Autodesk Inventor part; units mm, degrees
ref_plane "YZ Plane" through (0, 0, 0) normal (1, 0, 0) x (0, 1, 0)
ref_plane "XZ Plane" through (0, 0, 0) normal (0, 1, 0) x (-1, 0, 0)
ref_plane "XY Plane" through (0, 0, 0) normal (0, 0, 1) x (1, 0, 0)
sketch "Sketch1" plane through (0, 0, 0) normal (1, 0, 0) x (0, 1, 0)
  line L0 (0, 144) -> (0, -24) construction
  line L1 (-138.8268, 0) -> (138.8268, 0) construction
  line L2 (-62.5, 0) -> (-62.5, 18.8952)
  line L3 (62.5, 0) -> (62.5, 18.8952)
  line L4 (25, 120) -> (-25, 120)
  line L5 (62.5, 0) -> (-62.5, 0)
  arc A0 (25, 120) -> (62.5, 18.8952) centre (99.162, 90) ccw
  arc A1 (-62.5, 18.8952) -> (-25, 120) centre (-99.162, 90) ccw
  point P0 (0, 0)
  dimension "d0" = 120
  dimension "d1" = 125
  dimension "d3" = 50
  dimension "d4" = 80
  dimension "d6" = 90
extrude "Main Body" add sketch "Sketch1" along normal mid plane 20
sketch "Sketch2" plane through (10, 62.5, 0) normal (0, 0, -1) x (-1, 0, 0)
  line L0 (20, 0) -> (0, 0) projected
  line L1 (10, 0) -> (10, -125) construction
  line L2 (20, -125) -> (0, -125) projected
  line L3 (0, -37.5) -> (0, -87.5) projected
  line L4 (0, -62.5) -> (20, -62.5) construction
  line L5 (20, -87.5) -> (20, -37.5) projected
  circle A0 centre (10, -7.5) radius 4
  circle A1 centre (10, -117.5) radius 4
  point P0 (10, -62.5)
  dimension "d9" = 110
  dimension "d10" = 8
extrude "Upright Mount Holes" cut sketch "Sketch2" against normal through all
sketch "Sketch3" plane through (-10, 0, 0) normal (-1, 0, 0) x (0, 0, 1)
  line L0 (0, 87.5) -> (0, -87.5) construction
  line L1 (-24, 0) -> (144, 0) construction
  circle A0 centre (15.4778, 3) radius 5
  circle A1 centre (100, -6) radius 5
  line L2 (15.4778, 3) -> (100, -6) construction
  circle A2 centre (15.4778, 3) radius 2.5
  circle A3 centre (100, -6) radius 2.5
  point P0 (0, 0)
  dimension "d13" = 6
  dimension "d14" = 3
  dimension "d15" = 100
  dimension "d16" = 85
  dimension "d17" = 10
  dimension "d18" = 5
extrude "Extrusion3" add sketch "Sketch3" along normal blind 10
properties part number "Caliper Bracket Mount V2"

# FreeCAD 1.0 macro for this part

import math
import FreeCAD as App
import Part
import Sketcher
Q = App.Units.Quantity

doc = App.newDocument("Part")
params = doc.addObject("Spreadsheet::Sheet", "Params")
for row, (alias, value) in enumerate([
    ("sketch1_radius", "80 mm"),
    ("sketch1_width", "125 mm"),
    ("sketch1_width2", "50 mm"),
    ("pad1_length", "20 mm"),
    ("sketch2_diameter", "8 mm"),
    ("sketch3_diameter", "10 mm"),
    ("sketch3_diameter2", "5 mm"),
    ("pad2_length", "10 mm"),
], start=1):
    params.set(f"A{row}", alias)
    params.set(f"B{row}", "=" + value)
    params.setAlias(f"B{row}", alias)

body = doc.addObject("PartDesign::Body", "Body")

# Sketch on YZ plane
sketch1 = body.newObject("Sketcher::SketchObject", "Sketch")
sketch1.AttachmentSupport = (doc.getObject("YZ_Plane"), [""])
sketch1.MapMode = "FlatFace"
sketch1.addGeometry(Part.LineSegment(App.Vector(-62.5, 18.8952, 0), App.Vector(-62.5, 0, 0)), False)
sketch1.addGeometry(Part.LineSegment(App.Vector(-62.5, 0, 0), App.Vector(62.5, 0, 0)), False)
sketch1.addGeometry(Part.LineSegment(App.Vector(62.5, 0, 0), App.Vector(62.5, 18.8952, 0)), False)
sketch1.addGeometry(Part.ArcOfCircle(Part.Circle(App.Vector(99.162, 90, 0), App.Vector(0, 0, 1), 80.000014), math.radians(157.975691), math.radians(242.724136)), False)
sketch1.addGeometry(Part.LineSegment(App.Vector(25, 120, 0), App.Vector(-25, 120, 0)), False)
sketch1.addGeometry(Part.ArcOfCircle(Part.Circle(App.Vector(-99.162, 90, 0), App.Vector(0, 0, 1), 79.999968), math.radians(-62.724136), math.radians(22.024309)), False)
sketch1.addConstraint(Sketcher.Constraint("Coincident", 0, 2, 1, 1))
sketch1.addConstraint(Sketcher.Constraint("Coincident", 1, 2, 2, 1))
sketch1.addConstraint(Sketcher.Constraint("Coincident", 2, 2, 3, 2))
sketch1.addConstraint(Sketcher.Constraint("Coincident", 3, 1, 4, 1))
sketch1.addConstraint(Sketcher.Constraint("Coincident", 4, 2, 5, 2))
sketch1.addConstraint(Sketcher.Constraint("Coincident", 5, 1, 0, 1))
sketch1.addConstraint(Sketcher.Constraint("Vertical", 0))
sketch1.addConstraint(Sketcher.Constraint("Horizontal", 1))
sketch1.addConstraint(Sketcher.Constraint("Vertical", 2))
sketch1.addConstraint(Sketcher.Constraint("Horizontal", 4))
sketch1.addConstraint(Sketcher.Constraint("Equal", 3, 5))
sketch1.addConstraint(Sketcher.Constraint("Symmetric", 0, 2, 1, 2, -1, 1))
sketch1.addConstraint(Sketcher.Constraint("Symmetric", 3, 3, 5, 3, -2))
sketch1.addConstraint(Sketcher.Constraint("Radius", 3, Q("80 mm")))
sketch1.addConstraint(Sketcher.Constraint("DistanceX", 1, 1, 1, 2, Q("125 mm")))
sketch1.addConstraint(Sketcher.Constraint("DistanceX", 4, 2, 4, 1, Q("50 mm")))
sketch1.addConstraint(Sketcher.Constraint("DistanceY", -1, 1, 3, 3, Q("90 mm")))
sketch1.addConstraint(Sketcher.Constraint("DistanceY", -1, 1, 3, 1, Q("120 mm")))
sketch1.setExpression("Constraints[13]", "Params.sketch1_radius")
sketch1.setExpression("Constraints[14]", "Params.sketch1_width")
sketch1.setExpression("Constraints[15]", "Params.sketch1_width2")
pad1 = body.newObject("PartDesign::Pad", "Pad")
pad1.Profile = sketch1
pad1.setExpression("Length", "Params.pad1_length")
pad1.Midplane = True

# Sketch on XY plane
sketch2 = body.newObject("Sketcher::SketchObject", "Sketch001")
sketch2.AttachmentSupport = (doc.getObject("XY_Plane"), [""])
sketch2.MapMode = "FlatFace"
sketch2.addGeometry(Part.Circle(App.Vector(0, 55, 0), App.Vector(0, 0, 1), 4), False)
sketch2.addGeometry(Part.Circle(App.Vector(0, -55, 0), App.Vector(0, 0, 1), 4), False)
sketch2.addConstraint(Sketcher.Constraint("Equal", 0, 1))
sketch2.addConstraint(Sketcher.Constraint("Symmetric", 0, 3, 1, 3, -1, 1))
sketch2.addConstraint(Sketcher.Constraint("PointOnObject", 0, 3, -2))
sketch2.addConstraint(Sketcher.Constraint("Diameter", 0, Q("8 mm")))
sketch2.addConstraint(Sketcher.Constraint("DistanceY", 1, 3, 0, 3, Q("110 mm")))
sketch2.setExpression("Constraints[3]", "Params.sketch2_diameter")
pocket1 = body.newObject("PartDesign::Pocket", "Pocket")
pocket1.Profile = sketch2
pocket1.Type = "ThroughAll"
pocket1.Reversed = True

# Sketch on YZ plane
sketch3 = body.newObject("Sketcher::SketchObject", "Sketch002")
sketch3.AttachmentSupport = (doc.getObject("YZ_Plane"), [""])
sketch3.MapMode = "FlatFace"
sketch3.AttachmentOffset = App.Placement(App.Vector(0, 0, -10), App.Rotation())
sketch3.addGeometry(Part.Circle(App.Vector(3, 15.4778, 0), App.Vector(0, 0, 1), 5), False)
sketch3.addGeometry(Part.Circle(App.Vector(3, 15.4778, 0), App.Vector(0, 0, 1), 2.5), False)
sketch3.addGeometry(Part.Circle(App.Vector(-6, 100, 0), App.Vector(0, 0, 1), 5), False)
sketch3.addGeometry(Part.Circle(App.Vector(-6, 100, 0), App.Vector(0, 0, 1), 2.5), False)
sketch3.addConstraint(Sketcher.Constraint("Coincident", 1, 3, 0, 3))
sketch3.addConstraint(Sketcher.Constraint("Coincident", 3, 3, 2, 3))
sketch3.addConstraint(Sketcher.Constraint("Equal", 0, 2))
sketch3.addConstraint(Sketcher.Constraint("Equal", 1, 3))
sketch3.addConstraint(Sketcher.Constraint("Diameter", 0, Q("10 mm")))
sketch3.addConstraint(Sketcher.Constraint("Diameter", 1, Q("5 mm")))
sketch3.addConstraint(Sketcher.Constraint("DistanceX", -1, 1, 0, 3, Q("3 mm")))
sketch3.addConstraint(Sketcher.Constraint("DistanceX", 2, 3, -1, 1, Q("6 mm")))
sketch3.addConstraint(Sketcher.Constraint("DistanceY", -1, 1, 2, 3, Q("100 mm")))
sketch3.addConstraint(Sketcher.Constraint("DistanceY", -1, 1, 0, 3, Q("15.4778 mm")))
sketch3.setExpression("Constraints[4]", "Params.sketch3_diameter")
sketch3.setExpression("Constraints[5]", "Params.sketch3_diameter2")
pad2 = body.newObject("PartDesign::Pad", "Pad001")
pad2.Profile = sketch3
pad2.setExpression("Length", "Params.pad2_length")
pad2.Reversed = True

doc.recompute()
